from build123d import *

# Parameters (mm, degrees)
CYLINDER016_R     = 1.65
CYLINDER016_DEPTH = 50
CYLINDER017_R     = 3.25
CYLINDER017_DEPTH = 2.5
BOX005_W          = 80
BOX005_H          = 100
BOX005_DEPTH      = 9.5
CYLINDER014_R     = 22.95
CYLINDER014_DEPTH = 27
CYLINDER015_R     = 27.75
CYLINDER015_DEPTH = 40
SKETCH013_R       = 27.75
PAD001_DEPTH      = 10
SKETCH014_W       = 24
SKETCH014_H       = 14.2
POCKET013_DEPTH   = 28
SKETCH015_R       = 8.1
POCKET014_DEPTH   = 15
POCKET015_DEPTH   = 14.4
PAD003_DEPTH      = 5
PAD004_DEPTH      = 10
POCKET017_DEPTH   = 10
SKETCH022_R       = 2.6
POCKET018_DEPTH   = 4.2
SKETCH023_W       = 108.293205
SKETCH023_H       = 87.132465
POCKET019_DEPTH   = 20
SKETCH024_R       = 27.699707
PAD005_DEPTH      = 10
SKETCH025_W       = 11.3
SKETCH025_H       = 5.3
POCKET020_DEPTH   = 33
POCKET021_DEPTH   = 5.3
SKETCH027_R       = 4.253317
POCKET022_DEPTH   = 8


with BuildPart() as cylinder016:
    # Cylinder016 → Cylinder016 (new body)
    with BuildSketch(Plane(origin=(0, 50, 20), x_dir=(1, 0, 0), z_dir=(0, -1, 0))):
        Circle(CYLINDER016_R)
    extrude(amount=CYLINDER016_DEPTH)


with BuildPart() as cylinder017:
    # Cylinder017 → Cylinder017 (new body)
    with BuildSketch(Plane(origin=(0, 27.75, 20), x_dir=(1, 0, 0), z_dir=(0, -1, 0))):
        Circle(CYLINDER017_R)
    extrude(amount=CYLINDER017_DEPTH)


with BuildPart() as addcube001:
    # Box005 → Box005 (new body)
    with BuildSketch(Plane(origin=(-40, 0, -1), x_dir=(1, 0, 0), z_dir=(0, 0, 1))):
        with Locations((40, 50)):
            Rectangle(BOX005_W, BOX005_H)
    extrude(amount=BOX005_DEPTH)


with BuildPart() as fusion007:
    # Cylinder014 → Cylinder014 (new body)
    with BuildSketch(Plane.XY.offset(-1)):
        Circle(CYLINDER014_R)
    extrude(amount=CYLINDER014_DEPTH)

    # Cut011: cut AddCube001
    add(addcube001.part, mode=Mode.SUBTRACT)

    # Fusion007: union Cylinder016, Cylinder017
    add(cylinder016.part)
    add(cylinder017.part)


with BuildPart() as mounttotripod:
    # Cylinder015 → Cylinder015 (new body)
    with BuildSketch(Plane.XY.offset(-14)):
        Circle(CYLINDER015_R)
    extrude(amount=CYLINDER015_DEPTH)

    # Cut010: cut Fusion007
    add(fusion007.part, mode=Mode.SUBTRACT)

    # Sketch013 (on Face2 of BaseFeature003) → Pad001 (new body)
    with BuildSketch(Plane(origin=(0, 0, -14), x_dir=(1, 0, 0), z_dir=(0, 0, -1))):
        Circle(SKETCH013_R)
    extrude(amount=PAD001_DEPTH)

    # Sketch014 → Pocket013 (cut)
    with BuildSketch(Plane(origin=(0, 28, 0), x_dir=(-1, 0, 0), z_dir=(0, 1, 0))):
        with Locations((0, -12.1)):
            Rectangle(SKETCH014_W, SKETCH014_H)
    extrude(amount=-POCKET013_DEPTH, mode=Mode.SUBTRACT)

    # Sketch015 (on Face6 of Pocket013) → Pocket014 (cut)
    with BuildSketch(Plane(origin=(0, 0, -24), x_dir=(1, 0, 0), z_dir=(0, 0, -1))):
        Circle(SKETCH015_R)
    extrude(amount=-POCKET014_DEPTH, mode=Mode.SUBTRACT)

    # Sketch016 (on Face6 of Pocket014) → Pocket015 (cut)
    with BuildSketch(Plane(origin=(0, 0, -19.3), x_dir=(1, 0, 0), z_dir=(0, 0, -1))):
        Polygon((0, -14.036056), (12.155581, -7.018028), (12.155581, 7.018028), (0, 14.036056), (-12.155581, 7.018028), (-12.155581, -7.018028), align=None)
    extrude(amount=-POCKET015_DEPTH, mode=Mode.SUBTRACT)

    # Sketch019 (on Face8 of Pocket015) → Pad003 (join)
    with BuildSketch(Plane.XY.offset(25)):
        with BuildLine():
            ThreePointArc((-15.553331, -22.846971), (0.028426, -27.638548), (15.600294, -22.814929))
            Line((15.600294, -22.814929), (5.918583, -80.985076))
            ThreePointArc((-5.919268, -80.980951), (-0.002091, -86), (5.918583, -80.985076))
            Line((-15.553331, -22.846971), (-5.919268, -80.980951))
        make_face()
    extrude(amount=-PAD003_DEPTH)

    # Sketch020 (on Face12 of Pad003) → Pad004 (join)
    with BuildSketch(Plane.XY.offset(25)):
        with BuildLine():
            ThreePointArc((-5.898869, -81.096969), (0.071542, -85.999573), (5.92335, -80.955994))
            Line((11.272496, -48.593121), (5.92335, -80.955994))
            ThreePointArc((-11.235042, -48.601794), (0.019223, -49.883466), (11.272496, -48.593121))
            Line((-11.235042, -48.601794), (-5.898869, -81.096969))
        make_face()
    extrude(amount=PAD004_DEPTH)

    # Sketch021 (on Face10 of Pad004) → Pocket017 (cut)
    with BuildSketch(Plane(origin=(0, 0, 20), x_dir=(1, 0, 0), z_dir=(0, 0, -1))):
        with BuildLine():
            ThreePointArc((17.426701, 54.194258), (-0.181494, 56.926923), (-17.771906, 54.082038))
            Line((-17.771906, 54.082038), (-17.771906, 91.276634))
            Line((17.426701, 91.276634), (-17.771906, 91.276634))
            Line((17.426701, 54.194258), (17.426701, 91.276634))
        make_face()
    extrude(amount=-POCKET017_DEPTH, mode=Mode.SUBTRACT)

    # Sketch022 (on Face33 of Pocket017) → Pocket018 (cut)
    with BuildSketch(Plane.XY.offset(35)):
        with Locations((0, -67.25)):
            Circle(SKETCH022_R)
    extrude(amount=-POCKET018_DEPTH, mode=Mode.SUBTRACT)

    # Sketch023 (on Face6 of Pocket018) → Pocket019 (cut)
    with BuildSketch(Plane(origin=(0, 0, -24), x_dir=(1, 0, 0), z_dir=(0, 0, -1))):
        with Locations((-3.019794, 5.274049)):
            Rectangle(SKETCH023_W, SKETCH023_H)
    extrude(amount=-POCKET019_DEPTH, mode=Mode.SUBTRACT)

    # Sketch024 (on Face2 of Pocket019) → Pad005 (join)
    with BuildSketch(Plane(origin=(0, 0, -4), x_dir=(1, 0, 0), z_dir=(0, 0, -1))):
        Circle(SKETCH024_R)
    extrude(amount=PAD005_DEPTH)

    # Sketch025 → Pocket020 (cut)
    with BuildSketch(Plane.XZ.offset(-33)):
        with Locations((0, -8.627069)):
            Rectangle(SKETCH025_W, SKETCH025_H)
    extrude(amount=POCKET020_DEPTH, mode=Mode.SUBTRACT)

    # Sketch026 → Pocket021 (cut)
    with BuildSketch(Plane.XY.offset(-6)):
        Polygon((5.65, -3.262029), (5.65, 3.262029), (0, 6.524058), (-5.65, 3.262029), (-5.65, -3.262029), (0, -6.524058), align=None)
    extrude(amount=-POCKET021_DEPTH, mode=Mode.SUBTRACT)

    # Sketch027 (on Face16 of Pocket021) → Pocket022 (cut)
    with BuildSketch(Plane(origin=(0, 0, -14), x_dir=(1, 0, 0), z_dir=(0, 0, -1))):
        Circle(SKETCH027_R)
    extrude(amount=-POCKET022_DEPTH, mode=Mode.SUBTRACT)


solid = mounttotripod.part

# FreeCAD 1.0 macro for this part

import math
import FreeCAD as App
import Part
import Sketcher
Q = App.Units.Quantity


def add_polygon(sketch, points):
    """Adds a closed chain of lines whose ends are joined by coincident constraints."""
    first, n = sketch.GeometryCount, len(points)
    for a, b in zip(points, points[1:] + points[:1]):
        sketch.addGeometry(Part.LineSegment(App.Vector(*a, 0), App.Vector(*b, 0)), False)
    for i in range(n):
        sketch.addConstraint(Sketcher.Constraint("Coincident", first + i, 2, first + (i + 1) % n, 1))

doc = App.newDocument("Part")
body = doc.addObject("PartDesign::Body", "Body")

# Sketch on XZ plane
sketch1 = body.newObject("Sketcher::SketchObject", "Sketch")
sketch1.AttachmentSupport = (doc.getObject("XZ_Plane"), [""])
sketch1.MapMode = "FlatFace"
sketch1.AttachmentOffset = App.Placement(App.Vector(0, 0, -50), App.Rotation())
sketch1.addGeometry(Part.Circle(App.Vector(0, 20, 0), App.Vector(0, 0, 1), 1.6), False)
sketch1.addConstraint(Sketcher.Constraint("PointOnObject", 0, 3, -2))
sketch1.addConstraint(Sketcher.Constraint("Diameter", 0, 3.3))
sketch1.addConstraint(Sketcher.Constraint("DistanceY", -1, 1, 0, 3, 20.0))
pad1 = body.newObject("PartDesign::Pad", "Pad")
pad1.Profile = sketch1
pad1.Length = 50
body2 = doc.addObject("PartDesign::Body", "Body001")

# Sketch on XZ plane
sketch2 = body2.newObject("Sketcher::SketchObject", "Sketch001")
sketch2.AttachmentSupport = (doc.getObject("XZ_Plane001"), [""])
sketch2.MapMode = "FlatFace"
sketch2.AttachmentOffset = App.Placement(App.Vector(0, 0, -27.75), App.Rotation())
sketch2.addGeometry(Part.Circle(App.Vector(0, 20, 0), App.Vector(0, 0, 1), 3.2), False)
sketch2.addConstraint(Sketcher.Constraint("PointOnObject", 0, 3, -2))
sketch2.addConstraint(Sketcher.Constraint("Diameter", 0, 6.5))
sketch2.addConstraint(Sketcher.Constraint("DistanceY", -1, 1, 0, 3, 20.0))
pad2 = body2.newObject("PartDesign::Pad", "Pad001")
pad2.Profile = sketch2
pad2.Length = 2.5
body3 = doc.addObject("PartDesign::Body", "Body002")

# Sketch on XY plane
sketch3 = body3.newObject("Sketcher::SketchObject", "Sketch002")
sketch3.AttachmentSupport = (doc.getObject("XY_Plane002"), [""])
sketch3.MapMode = "FlatFace"
sketch3.AttachmentOffset = App.Placement(App.Vector(0, 0, -1), App.Rotation())
add_polygon(sketch3, [(-40, 100), (-40, 0), (40, 0), (40, 100)])  # lines 0-3
sketch3.addConstraint(Sketcher.Constraint("Vertical", 0))
sketch3.addConstraint(Sketcher.Constraint("Horizontal", 1))
sketch3.addConstraint(Sketcher.Constraint("Vertical", 2))
sketch3.addConstraint(Sketcher.Constraint("Horizontal", 3))
sketch3.addConstraint(Sketcher.Constraint("Symmetric", 0, 2, 1, 2, -1, 1))
sketch3.addConstraint(Sketcher.Constraint("DistanceX", 1, 1, 1, 2, 80.0))
sketch3.addConstraint(Sketcher.Constraint("DistanceY", 0, 2, 0, 1, 100.0))
pad3 = body3.newObject("PartDesign::Pad", "Pad002")
pad3.Profile = sketch3
pad3.Length = 9.5
body4 = doc.addObject("PartDesign::Body", "Body003")

# Sketch on XY plane
sketch4 = body4.newObject("Sketcher::SketchObject", "Sketch003")
sketch4.AttachmentSupport = (doc.getObject("XY_Plane003"), [""])
sketch4.MapMode = "FlatFace"
sketch4.AttachmentOffset = App.Placement(App.Vector(0, 0, -1), App.Rotation())
sketch4.addGeometry(Part.Circle(App.Vector(0, 0, 0), App.Vector(0, 0, 1), 23), False)
sketch4.addConstraint(Sketcher.Constraint("Coincident", 0, 3, -1, 1))
sketch4.addConstraint(Sketcher.Constraint("Diameter", 0, 45.9))
pad4 = body4.newObject("PartDesign::Pad", "Pad003")
pad4.Profile = sketch4
pad4.Length = 27
doc.recompute()

boolean = body4.newObject("PartDesign::Boolean", "Boolean")
boolean.Type = "Cut"
boolean.addObjects([body3])
doc.recompute()

boolean2 = body4.newObject("PartDesign::Boolean", "Boolean001")
boolean2.Type = "Fuse"
boolean2.addObjects([body])
doc.recompute()

boolean3 = body4.newObject("PartDesign::Boolean", "Boolean002")
boolean3.Type = "Fuse"
boolean3.addObjects([body2])
body5 = doc.addObject("PartDesign::Body", "Body004")

# Sketch on XY plane
sketch5 = body5.newObject("Sketcher::SketchObject", "Sketch004")
sketch5.AttachmentSupport = (doc.getObject("XY_Plane004"), [""])
sketch5.MapMode = "FlatFace"
sketch5.AttachmentOffset = App.Placement(App.Vector(0, 0, -14), App.Rotation())
sketch5.addGeometry(Part.Circle(App.Vector(0, 0, 0), App.Vector(0, 0, 1), 28), False)
sketch5.addConstraint(Sketcher.Constraint("Coincident", 0, 3, -1, 1))
sketch5.addConstraint(Sketcher.Constraint("Diameter", 0, 55.5))
pad5 = body5.newObject("PartDesign::Pad", "Pad004")
pad5.Profile = sketch5
pad5.Length = 40
doc.recompute()

boolean4 = body5.newObject("PartDesign::Boolean", "Boolean003")
boolean4.Type = "Cut"
boolean4.addObjects([body4])

# Sketch on XY plane
sketch6 = body5.newObject("Sketcher::SketchObject", "Sketch005")
sketch6.AttachmentSupport = (doc.getObject("XY_Plane004"), [""])
sketch6.MapMode = "FlatFace"
sketch6.AttachmentOffset = App.Placement(App.Vector(0, 0, -14), App.Rotation())
sketch6.addGeometry(Part.Circle(App.Vector(0, 0, 0), App.Vector(0, 0, 1), 28), False)
sketch6.addConstraint(Sketcher.Constraint("Coincident", 0, 3, -1, 1))
sketch6.addConstraint(Sketcher.Constraint("Diameter", 0, 55.5))
pad6 = body5.newObject("PartDesign::Pad", "Pad005")
pad6.Profile = sketch6
pad6.Length = 10
pad6.Reversed = True

# Sketch on XZ plane
sketch7 = body5.newObject("Sketcher::SketchObject", "Sketch006")
sketch7.AttachmentSupport = (doc.getObject("XZ_Plane004"), [""])
sketch7.MapMode = "FlatFace"
sketch7.AttachmentOffset = App.Placement(App.Vector(0, 0, -28), App.Rotation())
add_polygon(sketch7, [(12, -5), (12, -19), (-12, -19), (-12, -5)])  # lines 0-3
sketch7.addConstraint(Sketcher.Constraint("Vertical", 0))
sketch7.addConstraint(Sketcher.Constraint("Horizontal", 1))
sketch7.addConstraint(Sketcher.Constraint("Vertical", 2))
sketch7.addConstraint(Sketcher.Constraint("Horizontal", 3))
sketch7.addConstraint(Sketcher.Constraint("DistanceX", 1, 2, 1, 1, 24.0))
sketch7.addConstraint(Sketcher.Constraint("DistanceY", 0, 2, 0, 1, 14.2))
sketch7.addConstraint(Sketcher.Constraint("DistanceX", -1, 1, 0, 2, 12.0))
sketch7.addConstraint(Sketcher.Constraint("DistanceY", 2, 2, -1, 1, 5.0))
pocket1 = body5.newObject("PartDesign::Pocket", "Pocket")
pocket1.Profile = sketch7
pocket1.Length = 28
pocket1.Reversed = True

# Sketch on XY plane
sketch8 = body5.newObject("Sketcher::SketchObject", "Sketch007")
sketch8.AttachmentSupport = (doc.getObject("XY_Plane004"), [""])
sketch8.MapMode = "FlatFace"
sketch8.AttachmentOffset = App.Placement(App.Vector(0, 0, -24), App.Rotation())
sketch8.addGeometry(Part.Circle(App.Vector(0, 0, 0), App.Vector(0, 0, 1), 8), False)
sketch8.addConstraint(Sketcher.Constraint("Coincident", 0, 3, -1, 1))
sketch8.addConstraint(Sketcher.Constraint("Diameter", 0, 16.2))
pocket2 = body5.newObject("PartDesign::Pocket", "Pocket001")
pocket2.Profile = sketch8
pocket2.Length = 15
pocket2.Reversed = True

# Sketch on XY plane
sketch9 = body5.newObject("Sketcher::SketchObject", "Sketch008")
sketch9.AttachmentSupport = (doc.getObject("XY_Plane004"), [""])
sketch9.MapMode = "FlatFace"
sketch9.AttachmentOffset = App.Placement(App.Vector(0, 0, -19.3), App.Rotation())
add_polygon(sketch9, [(0, 14), (12, 7), (12, -7), (0, -14), (-12, -7), (-12, 7)])  # lines 0-5
sketch9.addConstraint(Sketcher.Constraint("Vertical", 1))
sketch9.addConstraint(Sketcher.Constraint("Vertical", 4))
sketch9.addConstraint(Sketcher.Constraint("Symmetric", 0, 2, 3, 2, -1, 1))
sketch9.addConstraint(Sketcher.Constraint("Symmetric", 2, 2, 5, 2, -1, 1))
sketch9.addConstraint(Sketcher.Constraint("PointOnObject", 2, 2, -2))
sketch9.addConstraint(Sketcher.Constraint("Parallel", 2, 5))
sketch9.addConstraint(Sketcher.Constraint("Horizontal", 1, 2, 3, 2))
sketch9.addConstraint(Sketcher.Constraint("Angle", 0, Q("-30 deg")))
sketch9.addConstraint(Sketcher.Constraint("DistanceY", 1, 2, 1, 1, 14.036056))
sketch9.addConstraint(Sketcher.Constraint("DistanceX", -1, 1, 0, 2, 12.155581))
pocket3 = body5.newObject("PartDesign::Pocket", "Pocket002")
pocket3.Profile = sketch9
pocket3.Length = 14.4
pocket3.Reversed = True

# Sketch on XY plane
sketch10 = body5.newObject("Sketcher::SketchObject", "Sketch009")
sketch10.AttachmentSupport = (doc.getObject("XY_Plane004"), [""])
sketch10.MapMode = "FlatFace"
sketch10.AttachmentOffset = App.Placement(App.Vector(0, 0, 25), App.Rotation())
sketch10.addGeometry(Part.ArcOfCircle(Part.Circle(App.Vector(0, 0, 0), App.Vector(0, 0, 1), 28), math.radians(-124), math.radians(-56)), False)
sketch10.addGeometry(Part.LineSegment(App.Vector(-16, -23, 0), App.Vector(-6, -81, 0)), False)
sketch10.addGeometry(Part.ArcOfCircle(Part.Circle(App.Vector(0, -80, 0), App.Vector(0, 0, 1), 6), math.radians(-171), math.radians(-9)), False)
sketch10.addGeometry(Part.LineSegment(App.Vector(6, -81, 0), App.Vector(16, -23, 0)), False)
sketch10.addConstraint(Sketcher.Constraint("Coincident", 0, 1, 1, 1))
sketch10.addConstraint(Sketcher.Constraint("Tangent", 1, 2, 2, 1))
sketch10.addConstraint(Sketcher.Constraint("Tangent", 2, 2, 3, 1))
sketch10.addConstraint(Sketcher.Constraint("Coincident", 3, 2, 0, 2))
sketch10.addConstraint(Sketcher.Constraint("Coincident", 0, 3, -1, 1))
sketch10.addConstraint(Sketcher.Constraint("PointOnObject", 2, 3, -2))
sketch10.addConstraint(Sketcher.Constraint("Radius", 2, 6.0))
sketch10.addConstraint(Sketcher.Constraint("DistanceY", 2, 3, -1, 1, 80.000001))
sketch10.addConstraint(Sketcher.Constraint("Radius", 0, 27.638566))
sketch10.addConstraint(Sketcher.Constraint("Distance", 1, 58.92686))
sketch10.addConstraint(Sketcher.Constraint("DistanceY", 3, 2, -1, 1, 22.814929))
pad7 = body5.newObject("PartDesign::Pad", "Pad006")
pad7.Profile = sketch10
pad7.Length = 5
pad7.Reversed = True

# Sketch on XY plane
sketch11 = body5.newObject("Sketcher::SketchObject", "Sketch010")
sketch11.AttachmentSupport = (doc.getObject("XY_Plane004"), [""])
sketch11.MapMode = "FlatFace"
sketch11.AttachmentOffset = App.Placement(App.Vector(0, 0, 25), App.Rotation())
sketch11.addGeometry(Part.ArcOfCircle(Part.Circle(App.Vector(0, -80, 0), App.Vector(0, 0, 1), 6), math.radians(-169), math.radians(-9)), False)
sketch11.addGeometry(Part.LineSegment(App.Vector(6, -81, 0), App.Vector(11, -49, 0)), False)
sketch11.addGeometry(Part.ArcOfCircle(Part.Circle(App.Vector(0, 0, 0), App.Vector(0, 0, 1), 50), math.radians(-103), math.radians(-77)), False)
sketch11.addGeometry(Part.LineSegment(App.Vector(-11, -49, 0), App.Vector(-6, -81, 0)), False)
sketch11.addConstraint(Sketcher.Constraint("Coincident", 0, 2, 1, 1))
sketch11.addConstraint(Sketcher.Constraint("Coincident", 1, 2, 2, 2))
sketch11.addConstraint(Sketcher.Constraint("Coincident", 2, 1, 3, 1))
sketch11.addConstraint(Sketcher.Constraint("Coincident", 3, 2, 0, 1))
sketch11.addConstraint(Sketcher.Constraint("Coincident", 2, 3, -1, 1))
sketch11.addConstraint(Sketcher.Constraint("PointOnObject", 0, 3, -2))
sketch11.addConstraint(Sketcher.Constraint("Radius", 0, 6.0))
sketch11.addConstraint(Sketcher.Constraint("DistanceY", 0, 3, -1, 1, 80.0))
sketch11.addConstraint(Sketcher.Constraint("Radius", 2, 49.883474))
sketch11.addConstraint(Sketcher.Constraint("DistanceY", 0, 2, 2, 3, 80.955999))
sketch11.addConstraint(Sketcher.Constraint("Distance", 3, 32.930398))
sketch11.addConstraint(Sketcher.Constraint("DistanceY", 0, 2, 2, 1, 32.3542))
sketch11.addConstraint(Sketcher.Constraint("DistanceY", 1, 2, -1, 1, 48.593121))
pad8 = body5.newObject("PartDesign::Pad", "Pad007")
pad8.Profile = sketch11
pad8.Length = 10

# Sketch on XY plane
sketch12 = body5.newObject("Sketcher::SketchObject", "Sketch011")
sketch12.AttachmentSupport = (doc.getObject("XY_Plane004"), [""])
sketch12.MapMode = "FlatFace"
sketch12.AttachmentOffset = App.Placement(App.Vector(0, 0, 20), App.Rotation())
sketch12.addGeometry(Part.ArcOfCircle(Part.Circle(App.Vector(0, 0, 0), App.Vector(0, 0, 1), 57), math.radians(-108), math.radians(-72)), False)
sketch12.addGeometry(Part.LineSegment(App.Vector(17, -54, 0), App.Vector(17, -91, 0)), False)
sketch12.addGeometry(Part.LineSegment(App.Vector(17, -91, 0), App.Vector(-18, -91, 0)), False)
sketch12.addGeometry(Part.LineSegment(App.Vector(-18, -91, 0), App.Vector(-18, -54, 0)), False)
sketch12.addConstraint(Sketcher.Constraint("Coincident", 0, 2, 1, 1))
sketch12.addConstraint(Sketcher.Constraint("Coincident", 1, 2, 2, 1))
sketch12.addConstraint(Sketcher.Constraint("Coincident", 2, 2, 3, 1))
sketch12.addConstraint(Sketcher.Constraint("Coincident", 3, 2, 0, 1))
sketch12.addConstraint(Sketcher.Constraint("Vertical", 1))
sketch12.addConstraint(Sketcher.Constraint("Horizontal", 2))
sketch12.addConstraint(Sketcher.Constraint("Vertical", 3))
sketch12.addConstraint(Sketcher.Constraint("Coincident", 0, 3, -1, 1))
sketch12.addConstraint(Sketcher.Constraint("Radius", 0, 56.927211))
sketch12.addConstraint(Sketcher.Constraint("DistanceX", -1, 1, 0, 2, 17.426701))
sketch12.addConstraint(Sketcher.Constraint("DistanceX", 2, 2, 2, 1, 35.198607))
sketch12.addConstraint(Sketcher.Constraint("DistanceY", 1, 2, 1, 1, 37.082376))
pocket4 = body5.newObject("PartDesign::Pocket", "Pocket003")
pocket4.Profile = sketch12
pocket4.Length = 10
pocket4.Reversed = True

# Sketch on XY plane
sketch13 = body5.newObject("Sketcher::SketchObject", "Sketch012")
sketch13.AttachmentSupport = (doc.getObject("XY_Plane004"), [""])
sketch13.MapMode = "FlatFace"
sketch13.AttachmentOffset = App.Placement(App.Vector(0, 0, 35), App.Rotation())
sketch13.addGeometry(Part.Circle(App.Vector(0, -67.2, 0), App.Vector(0, 0, 1), 2.6), False)
sketch13.addConstraint(Sketcher.Constraint("PointOnObject", 0, 3, -2))
sketch13.addConstraint(Sketcher.Constraint("Diameter", 0, 5.2))
sketch13.addConstraint(Sketcher.Constraint("DistanceY", 0, 3, -1, 1, 67.25))
pocket5 = body5.newObject("PartDesign::Pocket", "Pocket004")
pocket5.Profile = sketch13
pocket5.Length = 4.2

# Sketch on XY plane
sketch14 = body5.newObject("Sketcher::SketchObject", "Sketch013")
sketch14.AttachmentSupport = (doc.getObject("XY_Plane004"), [""])
sketch14.MapMode = "FlatFace"
sketch14.AttachmentOffset = App.Placement(App.Vector(0, 0, -24), App.Rotation())
add_polygon(sketch14, [(-57, -49), (-57, 38), (51, 38), (51, -49)])  # lines 0-3
sketch14.addConstraint(Sketcher.Constraint("Vertical", 0))
sketch14.addConstraint(Sketcher.Constraint("Horizontal", 1))
sketch14.addConstraint(Sketcher.Constraint("Vertical", 2))
sketch14.addConstraint(Sketcher.Constraint("Horizontal", 3))
sketch14.addConstraint(Sketcher.Constraint("DistanceX", 1, 1, 1, 2, 108.293205))
sketch14.addConstraint(Sketcher.Constraint("DistanceY", 0, 1, 0, 2, 87.132465))
sketch14.addConstraint(Sketcher.Constraint("DistanceX", -1, 1, 1, 2, 51.126809))
sketch14.addConstraint(Sketcher.Constraint("DistanceY", 2, 2, -1, 1, 48.840282))
pocket6 = body5.newObject("PartDesign::Pocket", "Pocket005")
pocket6.Profile = sketch14
pocket6.Length = 20
pocket6.Reversed = True

# Sketch on XY plane
sketch15 = body5.newObject("Sketcher::SketchObject", "Sketch014")
sketch15.AttachmentSupport = (doc.getObject("XY_Plane004"), [""])
sketch15.MapMode = "FlatFace"
sketch15.AttachmentOffset = App.Placement(App.Vector(0, 0, -4), App.Rotation())
sketch15.addGeometry(Part.Circle(App.Vector(0, 0, 0), App.Vector(0, 0, 1), 28), False)
sketch15.addConstraint(Sketcher.Constraint("Coincident", 0, 3, -1, 1))
sketch15.addConstraint(Sketcher.Constraint("Diameter", 0, 55.399414))
pad9 = body5.newObject("PartDesign::Pad", "Pad008")
pad9.Profile = sketch15
pad9.Length = 10
pad9.Reversed = True

# Sketch on XZ plane
sketch16 = body5.newObject("Sketcher::SketchObject", "Sketch015")
sketch16.AttachmentSupport = (doc.getObject("XZ_Plane004"), [""])
sketch16.MapMode = "FlatFace"
sketch16.AttachmentOffset = App.Placement(App.Vector(0, 0, -33), App.Rotation())
add_polygon(sketch16, [(-6, -6), (-6, -11), (6, -11), (6, -6)])  # lines 0-3
sketch16.addConstraint(Sketcher.Constraint("Vertical", 0))
sketch16.addConstraint(Sketcher.Constraint("Horizontal", 1))
sketch16.addConstraint(Sketcher.Constraint("Vertical", 2))
sketch16.addConstraint(Sketcher.Constraint("Horizontal", 3))
sketch16.addConstraint(Sketcher.Constraint("DistanceX", 1, 1, 1, 2, 11.3))
sketch16.addConstraint(Sketcher.Constraint("DistanceY", 0, 2, 0, 1, 5.3))
sketch16.addConstraint(Sketcher.Constraint("DistanceX", 0, 2, -1, 1, 5.65))
sketch16.addConstraint(Sketcher.Constraint("DistanceY", 0, 2, -1, 1, 11.277069))
pocket7 = body5.newObject("PartDesign::Pocket", "Pocket006")
pocket7.Profile = sketch16
pocket7.Length = 33
pocket7.Reversed = True

# Sketch on XY plane
sketch17 = body5.newObject("Sketcher::SketchObject", "Sketch016")
sketch17.AttachmentSupport = (doc.getObject("XY_Plane004"), [""])
sketch17.MapMode = "FlatFace"
sketch17.AttachmentOffset = App.Placement(App.Vector(0, 0, -6), App.Rotation())
add_polygon(sketch17, [(6, -3), (6, 3), (0, 7), (-6, 3), (-6, -3), (0, -7)])  # lines 0-5
sketch17.addConstraint(Sketcher.Constraint("Vertical", 0))
sketch17.addConstraint(Sketcher.Constraint("Vertical", 3))
sketch17.addConstraint(Sketcher.Constraint("Symmetric", 0, 2, 3, 2, -1, 1))
sketch17.addConstraint(Sketcher.Constraint("Symmetric", 1, 2, 4, 2, -1, 1))
sketch17.addConstraint(Sketcher.Constraint("PointOnObject", 1, 2, -2))
sketch17.addConstraint(Sketcher.Constraint("Parallel", 2, 5))
sketch17.addConstraint(Sketcher.Constraint("Horizontal", 0, 2, 2, 2))
sketch17.addConstraint(Sketcher.Constraint("Angle", 1, Q("150 deg")))
sketch17.addConstraint(Sketcher.Constraint("DistanceX", 2, 2, 0, 2, 11.3))
sketch17.addConstraint(Sketcher.Constraint("DistanceY", 0, 1, 0, 2, 6.524058))
pocket8 = body5.newObject("PartDesign::Pocket", "Pocket007")
pocket8.Profile = sketch17
pocket8.Length = 5.3

# Sketch on XY plane
sketch18 = body5.newObject("Sketcher::SketchObject", "Sketch017")
sketch18.AttachmentSupport = (doc.getObject("XY_Plane004"), [""])
sketch18.MapMode = "FlatFace"
sketch18.AttachmentOffset = App.Placement(App.Vector(0, 0, -14), App.Rotation())
sketch18.addGeometry(Part.Circle(App.Vector(0, 0, 0), App.Vector(0, 0, 1), 4.3), False)
sketch18.addConstraint(Sketcher.Constraint("Coincident", 0, 3, -1, 1))
sketch18.addConstraint(Sketcher.Constraint("Diameter", 0, 8.506634))
pocket9 = body5.newObject("PartDesign::Pocket", "Pocket008")
pocket9.Profile = sketch18
pocket9.Length = 8
pocket9.Reversed = True

doc.recompute()
